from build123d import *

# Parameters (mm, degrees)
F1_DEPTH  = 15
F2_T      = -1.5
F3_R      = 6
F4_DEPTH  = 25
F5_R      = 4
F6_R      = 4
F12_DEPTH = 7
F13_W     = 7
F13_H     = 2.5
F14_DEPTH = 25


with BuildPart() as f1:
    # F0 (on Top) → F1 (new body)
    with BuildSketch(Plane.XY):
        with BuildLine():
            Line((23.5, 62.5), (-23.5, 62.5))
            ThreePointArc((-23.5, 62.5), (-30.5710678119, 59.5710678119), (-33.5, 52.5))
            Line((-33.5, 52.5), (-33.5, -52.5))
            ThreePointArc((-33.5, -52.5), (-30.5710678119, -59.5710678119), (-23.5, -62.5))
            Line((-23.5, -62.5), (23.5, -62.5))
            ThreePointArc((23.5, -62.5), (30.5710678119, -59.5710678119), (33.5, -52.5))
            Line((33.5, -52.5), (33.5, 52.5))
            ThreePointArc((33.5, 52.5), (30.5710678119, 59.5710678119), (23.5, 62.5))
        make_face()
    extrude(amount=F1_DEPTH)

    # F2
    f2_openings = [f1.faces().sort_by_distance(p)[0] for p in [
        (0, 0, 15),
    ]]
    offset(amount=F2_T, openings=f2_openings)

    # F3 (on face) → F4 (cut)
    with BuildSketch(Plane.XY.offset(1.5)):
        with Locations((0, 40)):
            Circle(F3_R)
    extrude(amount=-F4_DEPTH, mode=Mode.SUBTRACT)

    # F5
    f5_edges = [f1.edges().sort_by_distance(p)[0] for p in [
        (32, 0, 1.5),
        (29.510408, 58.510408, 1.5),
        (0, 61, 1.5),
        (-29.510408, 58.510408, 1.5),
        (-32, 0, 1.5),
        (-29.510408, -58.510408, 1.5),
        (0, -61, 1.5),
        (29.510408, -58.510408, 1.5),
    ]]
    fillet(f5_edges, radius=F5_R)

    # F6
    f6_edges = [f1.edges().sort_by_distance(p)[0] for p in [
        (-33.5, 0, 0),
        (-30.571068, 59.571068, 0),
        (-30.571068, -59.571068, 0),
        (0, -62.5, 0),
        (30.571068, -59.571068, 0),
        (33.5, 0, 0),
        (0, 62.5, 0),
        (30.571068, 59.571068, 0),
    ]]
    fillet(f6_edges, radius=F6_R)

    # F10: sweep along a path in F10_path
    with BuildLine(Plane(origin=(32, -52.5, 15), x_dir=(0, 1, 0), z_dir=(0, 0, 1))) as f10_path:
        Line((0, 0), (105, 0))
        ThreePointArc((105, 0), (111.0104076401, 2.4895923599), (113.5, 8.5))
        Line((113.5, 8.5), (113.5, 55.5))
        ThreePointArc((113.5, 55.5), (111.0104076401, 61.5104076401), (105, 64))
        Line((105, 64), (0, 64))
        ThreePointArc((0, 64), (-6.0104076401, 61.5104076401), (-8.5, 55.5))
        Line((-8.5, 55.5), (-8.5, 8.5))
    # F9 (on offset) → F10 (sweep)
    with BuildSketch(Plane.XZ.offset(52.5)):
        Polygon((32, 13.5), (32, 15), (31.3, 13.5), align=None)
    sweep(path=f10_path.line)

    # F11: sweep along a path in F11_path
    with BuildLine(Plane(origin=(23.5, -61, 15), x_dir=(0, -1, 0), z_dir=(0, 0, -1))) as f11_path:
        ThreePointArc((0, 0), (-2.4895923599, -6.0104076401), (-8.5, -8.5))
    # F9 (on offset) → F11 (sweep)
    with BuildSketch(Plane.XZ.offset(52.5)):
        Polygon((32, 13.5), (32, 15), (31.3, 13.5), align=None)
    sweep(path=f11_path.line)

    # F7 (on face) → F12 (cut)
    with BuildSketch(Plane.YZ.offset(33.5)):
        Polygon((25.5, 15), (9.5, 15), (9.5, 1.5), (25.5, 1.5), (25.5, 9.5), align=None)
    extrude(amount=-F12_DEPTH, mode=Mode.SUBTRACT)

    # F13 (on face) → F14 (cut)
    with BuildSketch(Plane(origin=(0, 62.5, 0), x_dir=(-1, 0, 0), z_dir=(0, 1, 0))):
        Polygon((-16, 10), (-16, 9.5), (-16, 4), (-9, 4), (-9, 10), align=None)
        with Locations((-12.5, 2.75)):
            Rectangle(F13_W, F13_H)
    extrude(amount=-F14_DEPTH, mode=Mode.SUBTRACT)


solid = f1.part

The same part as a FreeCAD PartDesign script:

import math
import FreeCAD as App
import Part
import Sketcher

V = App.Vector


def edges_at(feature, points):
    """Names of the edges that pass closest to the given points."""
    edges = feature.Shape.Edges
    near = lambda p: min(range(len(edges)), key=lambda i: edges[i].distToShape(Part.Vertex(*p))[0])
    return sorted({f"Edge{near(p) + 1}" for p in points})


def faces_at(feature, points):
    """Names of the faces that lie closest to the given points."""
    faces = feature.Shape.Faces
    near = lambda p: min(range(len(faces)), key=lambda i: faces[i].distToShape(Part.Vertex(*p))[0])
    return sorted({f"Face{near(p) + 1}" for p in points})

doc = App.newDocument("Part")
body = doc.addObject("PartDesign::Body", "Body")

sketch1 = body.newObject("Sketcher::SketchObject", "Sketch")
sketch1.AttachmentSupport = (doc.getObject("XY_Plane"), [""])
sketch1.MapMode = "FlatFace"
sketch1.addGeometry(Part.LineSegment(V(23.5, 62.5, 0), V(-23.5, 62.5, 0)), False)
sketch1.addGeometry(Part.ArcOfCircle(Part.Circle(V(-23.5, 52.5, 0), V(0, 0, 1), 10), math.radians(90), math.radians(180)), False)
sketch1.addGeometry(Part.LineSegment(V(-33.5, 52.5, 0), V(-33.5, -52.5, 0)), False)
sketch1.addGeometry(Part.ArcOfCircle(Part.Circle(V(-23.5, -52.5, 0), V(0, 0, 1), 10), math.radians(180), math.radians(270)), False)
sketch1.addGeometry(Part.LineSegment(V(-23.5, -62.5, 0), V(23.5, -62.5, 0)), False)
sketch1.addGeometry(Part.ArcOfCircle(Part.Circle(V(23.5, -52.5, 0), V(0, 0, 1), 10), math.radians(-90), math.radians(0)), False)
sketch1.addGeometry(Part.LineSegment(V(33.5, -52.5, 0), V(33.5, 52.5, 0)), False)
sketch1.addGeometry(Part.ArcOfCircle(Part.Circle(V(23.5, 52.5, 0), V(0, 0, 1), 10), math.radians(0), math.radians(90)), False)
sketch1.addConstraint(Sketcher.Constraint("Tangent", 0, 2, 1, 1))
sketch1.addConstraint(Sketcher.Constraint("Tangent", 1, 2, 2, 1))
sketch1.addConstraint(Sketcher.Constraint("Tangent", 2, 2, 3, 1))
sketch1.addConstraint(Sketcher.Constraint("Tangent", 3, 2, 4, 1))
sketch1.addConstraint(Sketcher.Constraint("Tangent", 4, 2, 5, 1))
sketch1.addConstraint(Sketcher.Constraint("Tangent", 5, 2, 6, 1))
sketch1.addConstraint(Sketcher.Constraint("Tangent", 6, 2, 7, 1))
sketch1.addConstraint(Sketcher.Constraint("Tangent", 7, 2, 0, 1))
sketch1.addConstraint(Sketcher.Constraint("Horizontal", 0))
sketch1.addConstraint(Sketcher.Constraint("Vertical", 2))
sketch1.addConstraint(Sketcher.Constraint("Horizontal", 4))
sketch1.addConstraint(Sketcher.Constraint("Vertical", 6))
sketch1.addConstraint(Sketcher.Constraint("Equal", 1, 3))
sketch1.addConstraint(Sketcher.Constraint("Equal", 3, 5))
sketch1.addConstraint(Sketcher.Constraint("Equal", 5, 7))
sketch1.addConstraint(Sketcher.Constraint("Symmetric", 1, 3, 5, 3, -1, 1))
sketch1.addConstraint(Sketcher.Constraint("Radius", 1, 10.0))
sketch1.addConstraint(Sketcher.Constraint("DistanceX", 0, 2, 0, 1, 47.0))
sketch1.addConstraint(Sketcher.Constraint("DistanceY", 2, 2, 2, 1, 105.0))
pad1 = body.newObject("PartDesign::Pad", "Pad")
pad1.Profile = sketch1
pad1.Length = 15
doc.recompute()

thickness = body.newObject("PartDesign::Thickness", "Thickness")
thickness.Base = (pad1, faces_at(pad1, [(0, 0, 15)]))
thickness.Value = 1.5
thickness.Reversed = True
thickness.Join = "Arc"

sketch2 = body.newObject("Sketcher::SketchObject", "Sketch001")
sketch2.AttachmentSupport = (doc.getObject("XY_Plane"), [""])
sketch2.MapMode = "FlatFace"
sketch2.AttachmentOffset = App.Placement(V(0, 0, 1.5), App.Rotation())
sketch2.addGeometry(Part.Circle(V(0, 40, 0), V(0, 0, 1), 6), False)
sketch2.addConstraint(Sketcher.Constraint("PointOnObject", 0, 3, -2))
sketch2.addConstraint(Sketcher.Constraint("Diameter", 0, 12.0))
sketch2.addConstraint(Sketcher.Constraint("DistanceY", -1, 1, 0, 3, 40.0))
pocket1 = body.newObject("PartDesign::Pocket", "Pocket")
pocket1.Profile = sketch2
pocket1.Length = 25
doc.recompute()

fillet = body.newObject("PartDesign::Fillet", "Fillet")
fillet.Base = (pocket1, edges_at(pocket1, [
    (32, 0, 1.5),
    (29.51, 58.51, 1.5),
    (0, 61, 1.5),
    (-29.51, 58.51, 1.5),
    (-32, 0, 1.5),
    (-29.51, -58.51, 1.5),
    (0, -61, 1.5),
    (29.51, -58.51, 1.5),
]))
fillet.Radius = 4
doc.recompute()

fillet2 = body.newObject("PartDesign::Fillet", "Fillet001")
fillet2.Base = (fillet, edges_at(fillet, [
    (-33.5, 0, 0),
    (-30.571, 59.571, 0),
    (-30.571, -59.571, 0),
    (0, -62.5, 0),
    (30.571, -59.571, 0),
    (33.5, 0, 0),
    (0, 62.5, 0),
    (30.571, 59.571, 0),
]))
fillet2.Radius = 4

sketch3 = body.newObject("Sketcher::SketchObject", "Sketch002")
sketch3.AttachmentSupport = (doc.getObject("XZ_Plane"), [""])
sketch3.MapMode = "FlatFace"
sketch3.AttachmentOffset = App.Placement(V(0, 0, 52.5), App.Rotation())
sketch3.addGeometry(Part.LineSegment(V(32, 13.5, 0), V(32, 15, 0)), False)
sketch3.addGeometry(Part.LineSegment(V(32, 15, 0), V(31.3, 13.5, 0)), False)
sketch3.addGeometry(Part.LineSegment(V(31.3, 13.5, 0), V(32, 13.5, 0)), False)
sketch3.addConstraint(Sketcher.Constraint("Coincident", 0, 2, 1, 1))
sketch3.addConstraint(Sketcher.Constraint("Coincident", 1, 2, 2, 1))
sketch3.addConstraint(Sketcher.Constraint("Coincident", 2, 2, 0, 1))
sketch3.addConstraint(Sketcher.Constraint("Vertical", 0))
sketch3.addConstraint(Sketcher.Constraint("Horizontal", 2))
sketch3.addConstraint(Sketcher.Constraint("DistanceX", 2, 1, 2, 2, 0.7))
sketch3.addConstraint(Sketcher.Constraint("DistanceY", 0, 1, 0, 2, 1.5))
sketch3.addConstraint(Sketcher.Constraint("DistanceX", -1, 1, 0, 2, 32.0))
sketch3.addConstraint(Sketcher.Constraint("DistanceY", -1, 1, 0, 2, 15.0))

sketch4 = body.newObject("Sketcher::SketchObject", "Sketch003")
sketch4.AttachmentSupport = (doc.getObject("XY_Plane"), [""])
sketch4.MapMode = "FlatFace"
sketch4.AttachmentOffset = App.Placement(V(0, 0, 15), App.Rotation())
sketch4.addGeometry(Part.LineSegment(V(32, -52.5, 0), V(32, 52.5, 0)), False)
sketch4.addGeometry(Part.ArcOfCircle(Part.Circle(V(23.5, 52.5, 0), V(0, 0, 1), 8.5), math.radians(0), math.radians(90)), False)
sketch4.addGeometry(Part.LineSegment(V(23.5, 61, 0), V(-23.5, 61, 0)), False)
sketch4.addGeometry(Part.ArcOfCircle(Part.Circle(V(-23.5, 52.5, 0), V(0, 0, 1), 8.5), math.radians(90), math.radians(180)), False)
sketch4.addGeometry(Part.LineSegment(V(-32, 52.5, 0), V(-32, -52.5, 0)), False)
sketch4.addGeometry(Part.ArcOfCircle(Part.Circle(V(-23.5, -52.5, 0), V(0, 0, 1), 8.5), math.radians(180), math.radians(270)), False)
sketch4.addGeometry(Part.LineSegment(V(-23.5, -61, 0), V(23.5, -61, 0)), False)
sketch4.addConstraint(Sketcher.Constraint("Tangent", 0, 2, 1, 1))
sketch4.addConstraint(Sketcher.Constraint("Tangent", 1, 2, 2, 1))
sketch4.addConstraint(Sketcher.Constraint("Tangent", 2, 2, 3, 1))
sketch4.addConstraint(Sketcher.Constraint("Tangent", 3, 2, 4, 1))
sketch4.addConstraint(Sketcher.Constraint("Tangent", 4, 2, 5, 1))
sketch4.addConstraint(Sketcher.Constraint("Tangent", 5, 2, 6, 1))
sketch4.addConstraint(Sketcher.Constraint("Vertical", 0))
sketch4.addConstraint(Sketcher.Constraint("Horizontal", 2))
sketch4.addConstraint(Sketcher.Constraint("Vertical", 4))
sketch4.addConstraint(Sketcher.Constraint("Horizontal", 6))
sketch4.addConstraint(Sketcher.Constraint("Equal", 1, 3))
sketch4.addConstraint(Sketcher.Constraint("Equal", 3, 5))
sketch4.addConstraint(Sketcher.Constraint("Symmetric", 1, 3, 5, 3, -1, 1))
sketch4.addConstraint(Sketcher.Constraint("Horizontal", 5, 3, 0, 1))
sketch4.addConstraint(Sketcher.Constraint("Vertical", 1, 2, 6, 2))
sketch4.addConstraint(Sketcher.Constraint("Radius", 1, 8.5))
sketch4.addConstraint(Sketcher.Constraint("DistanceX", 2, 2, 2, 1, 47.0))
sketch4.addConstraint(Sketcher.Constraint("DistanceY", 0, 1, 0, 2, 105.0))
doc.recompute()

additivepipe = body.newObject("PartDesign::AdditivePipe", "AdditivePipe")
additivepipe.Profile = sketch3
additivepipe.Spine = (sketch4, ["Edge1", "Edge2", "Edge3", "Edge4", "Edge5", "Edge6", "Edge7"])

sketch5 = body.newObject("Sketcher::SketchObject", "Sketch004")
sketch5.AttachmentSupport = (doc.getObject("XZ_Plane"), [""])
sketch5.MapMode = "FlatFace"
sketch5.AttachmentOffset = App.Placement(V(0, 0, 52.5), App.Rotation())
sketch5.addGeometry(Part.LineSegment(V(32, 13.5, 0), V(32, 15, 0)), False)
sketch5.addGeometry(Part.LineSegment(V(32, 15, 0), V(31.3, 13.5, 0)), False)
sketch5.addGeometry(Part.LineSegment(V(31.3, 13.5, 0), V(32, 13.5, 0)), False)
sketch5.addConstraint(Sketcher.Constraint("Coincident", 0, 2, 1, 1))
sketch5.addConstraint(Sketcher.Constraint("Coincident", 1, 2, 2, 1))
sketch5.addConstraint(Sketcher.Constraint("Coincident", 2, 2, 0, 1))
sketch5.addConstraint(Sketcher.Constraint("Vertical", 0))
sketch5.addConstraint(Sketcher.Constraint("Horizontal", 2))
sketch5.addConstraint(Sketcher.Constraint("DistanceX", 2, 1, 2, 2, 0.7))
sketch5.addConstraint(Sketcher.Constraint("DistanceY", 0, 1, 0, 2, 1.5))
sketch5.addConstraint(Sketcher.Constraint("DistanceX", -1, 1, 0, 2, 32.0))
sketch5.addConstraint(Sketcher.Constraint("DistanceY", -1, 1, 0, 2, 15.0))

sketch6 = body.newObject("Sketcher::SketchObject", "Sketch005")
sketch6.AttachmentSupport = (doc.getObject("XY_Plane"), [""])
sketch6.MapMode = "FlatFace"
sketch6.AttachmentOffset = App.Placement(V(0, 0, 15), App.Rotation())
sketch6.addGeometry(Part.ArcOfCircle(Part.Circle(V(23.5, -52.5, 0), V(0, 0, 1), 8.5), math.radians(-90), math.radians(0)), False)
sketch6.addConstraint(Sketcher.Constraint("Radius", 0, 8.5))
sketch6.addConstraint(Sketcher.Constraint("DistanceY", 0, 1, -1, 1, 61.0))
sketch6.addConstraint(Sketcher.Constraint("DistanceX", -1, 1, 0, 2, 32.0))
sketch6.addConstraint(Sketcher.Constraint("DistanceX", -1, 1, 0, 1, 23.5))
sketch6.addConstraint(Sketcher.Constraint("DistanceY", 0, 2, -1, 1, 52.5))
doc.recompute()

additivepipe2 = body.newObject("PartDesign::AdditivePipe", "AdditivePipe001")
additivepipe2.Profile = sketch5
additivepipe2.Spine = (sketch6, ["Edge1"])

sketch7 = body.newObject("Sketcher::SketchObject", "Sketch006")
sketch7.AttachmentSupport = (doc.getObject("YZ_Plane"), [""])
sketch7.MapMode = "FlatFace"
sketch7.AttachmentOffset = App.Placement(V(0, 0, 33.5), App.Rotation())
sketch7.addGeometry(Part.LineSegment(V(25.5, 15, 0), V(9.5, 15, 0)), False)
sketch7.addGeometry(Part.LineSegment(V(9.5, 15, 0), V(9.5, 1.5, 0)), False)
sketch7.addGeometry(Part.LineSegment(V(9.5, 1.5, 0), V(25.5, 1.5, 0)), False)
sketch7.addGeometry(Part.LineSegment(V(25.5, 1.5, 0), V(25.5, 15, 0)), False)
sketch7.addConstraint(Sketcher.Constraint("Coincident", 0, 2, 1, 1))
sketch7.addConstraint(Sketcher.Constraint("Coincident", 1, 2, 2, 1))
sketch7.addConstraint(Sketcher.Constraint("Coincident", 2, 2, 3, 1))
sketch7.addConstraint(Sketcher.Constraint("Coincident", 3, 2, 0, 1))
sketch7.addConstraint(Sketcher.Constraint("Horizontal", 0))
sketch7.addConstraint(Sketcher.Constraint("Vertical", 1))
sketch7.addConstraint(Sketcher.Constraint("Horizontal", 2))
sketch7.addConstraint(Sketcher.Constraint("Vertical", 3))
sketch7.addConstraint(Sketcher.Constraint("DistanceX", 0, 2, 0, 1, 16.0))
sketch7.addConstraint(Sketcher.Constraint("DistanceY", 1, 2, 1, 1, 13.5))
sketch7.addConstraint(Sketcher.Constraint("DistanceY", -1, 1, 0, 2, 15.0))
sketch7.addConstraint(Sketcher.Constraint("DistanceX", -1, 1, 0, 2, 9.5))
pocket2 = body.newObject("PartDesign::Pocket", "Pocket001")
pocket2.Profile = sketch7
pocket2.Length = 7

sketch8 = body.newObject("Sketcher::SketchObject", "Sketch007")
sketch8.AttachmentSupport = (doc.getObject("XZ_Plane"), [""])
sketch8.MapMode = "FlatFace"
sketch8.AttachmentOffset = App.Placement(V(0, 0, -62.5), App.Rotation())
sketch8.addGeometry(Part.LineSegment(V(16, 10, 0), V(16, 1.5, 0)), False)
sketch8.addGeometry(Part.LineSegment(V(16, 1.5, 0), V(9, 1.5, 0)), False)
sketch8.addGeometry(Part.LineSegment(V(9, 1.5, 0), V(9, 10, 0)), False)
sketch8.addGeometry(Part.LineSegment(V(9, 10, 0), V(16, 10, 0)), False)
sketch8.addConstraint(Sketcher.Constraint("Coincident", 0, 2, 1, 1))
sketch8.addConstraint(Sketcher.Constraint("Coincident", 1, 2, 2, 1))
sketch8.addConstraint(Sketcher.Constraint("Coincident", 2, 2, 3, 1))
sketch8.addConstraint(Sketcher.Constraint("Coincident", 3, 2, 0, 1))
sketch8.addConstraint(Sketcher.Constraint("Vertical", 0))
sketch8.addConstraint(Sketcher.Constraint("Horizontal", 1))
sketch8.addConstraint(Sketcher.Constraint("Vertical", 2))
sketch8.addConstraint(Sketcher.Constraint("Horizontal", 3))
sketch8.addConstraint(Sketcher.Constraint("DistanceX", 1, 2, 1, 1, 7.0))
sketch8.addConstraint(Sketcher.Constraint("DistanceY", 0, 2, 0, 1, 8.5))
sketch8.addConstraint(Sketcher.Constraint("DistanceX", -1, 1, 0, 2, 16.0))
sketch8.addConstraint(Sketcher.Constraint("DistanceY", -1, 1, 2, 2, 10.0))
pocket3 = body.newObject("PartDesign::Pocket", "Pocket002")
pocket3.Profile = sketch8
pocket3.Length = 25
pocket3.Reversed = True

doc.recompute()
